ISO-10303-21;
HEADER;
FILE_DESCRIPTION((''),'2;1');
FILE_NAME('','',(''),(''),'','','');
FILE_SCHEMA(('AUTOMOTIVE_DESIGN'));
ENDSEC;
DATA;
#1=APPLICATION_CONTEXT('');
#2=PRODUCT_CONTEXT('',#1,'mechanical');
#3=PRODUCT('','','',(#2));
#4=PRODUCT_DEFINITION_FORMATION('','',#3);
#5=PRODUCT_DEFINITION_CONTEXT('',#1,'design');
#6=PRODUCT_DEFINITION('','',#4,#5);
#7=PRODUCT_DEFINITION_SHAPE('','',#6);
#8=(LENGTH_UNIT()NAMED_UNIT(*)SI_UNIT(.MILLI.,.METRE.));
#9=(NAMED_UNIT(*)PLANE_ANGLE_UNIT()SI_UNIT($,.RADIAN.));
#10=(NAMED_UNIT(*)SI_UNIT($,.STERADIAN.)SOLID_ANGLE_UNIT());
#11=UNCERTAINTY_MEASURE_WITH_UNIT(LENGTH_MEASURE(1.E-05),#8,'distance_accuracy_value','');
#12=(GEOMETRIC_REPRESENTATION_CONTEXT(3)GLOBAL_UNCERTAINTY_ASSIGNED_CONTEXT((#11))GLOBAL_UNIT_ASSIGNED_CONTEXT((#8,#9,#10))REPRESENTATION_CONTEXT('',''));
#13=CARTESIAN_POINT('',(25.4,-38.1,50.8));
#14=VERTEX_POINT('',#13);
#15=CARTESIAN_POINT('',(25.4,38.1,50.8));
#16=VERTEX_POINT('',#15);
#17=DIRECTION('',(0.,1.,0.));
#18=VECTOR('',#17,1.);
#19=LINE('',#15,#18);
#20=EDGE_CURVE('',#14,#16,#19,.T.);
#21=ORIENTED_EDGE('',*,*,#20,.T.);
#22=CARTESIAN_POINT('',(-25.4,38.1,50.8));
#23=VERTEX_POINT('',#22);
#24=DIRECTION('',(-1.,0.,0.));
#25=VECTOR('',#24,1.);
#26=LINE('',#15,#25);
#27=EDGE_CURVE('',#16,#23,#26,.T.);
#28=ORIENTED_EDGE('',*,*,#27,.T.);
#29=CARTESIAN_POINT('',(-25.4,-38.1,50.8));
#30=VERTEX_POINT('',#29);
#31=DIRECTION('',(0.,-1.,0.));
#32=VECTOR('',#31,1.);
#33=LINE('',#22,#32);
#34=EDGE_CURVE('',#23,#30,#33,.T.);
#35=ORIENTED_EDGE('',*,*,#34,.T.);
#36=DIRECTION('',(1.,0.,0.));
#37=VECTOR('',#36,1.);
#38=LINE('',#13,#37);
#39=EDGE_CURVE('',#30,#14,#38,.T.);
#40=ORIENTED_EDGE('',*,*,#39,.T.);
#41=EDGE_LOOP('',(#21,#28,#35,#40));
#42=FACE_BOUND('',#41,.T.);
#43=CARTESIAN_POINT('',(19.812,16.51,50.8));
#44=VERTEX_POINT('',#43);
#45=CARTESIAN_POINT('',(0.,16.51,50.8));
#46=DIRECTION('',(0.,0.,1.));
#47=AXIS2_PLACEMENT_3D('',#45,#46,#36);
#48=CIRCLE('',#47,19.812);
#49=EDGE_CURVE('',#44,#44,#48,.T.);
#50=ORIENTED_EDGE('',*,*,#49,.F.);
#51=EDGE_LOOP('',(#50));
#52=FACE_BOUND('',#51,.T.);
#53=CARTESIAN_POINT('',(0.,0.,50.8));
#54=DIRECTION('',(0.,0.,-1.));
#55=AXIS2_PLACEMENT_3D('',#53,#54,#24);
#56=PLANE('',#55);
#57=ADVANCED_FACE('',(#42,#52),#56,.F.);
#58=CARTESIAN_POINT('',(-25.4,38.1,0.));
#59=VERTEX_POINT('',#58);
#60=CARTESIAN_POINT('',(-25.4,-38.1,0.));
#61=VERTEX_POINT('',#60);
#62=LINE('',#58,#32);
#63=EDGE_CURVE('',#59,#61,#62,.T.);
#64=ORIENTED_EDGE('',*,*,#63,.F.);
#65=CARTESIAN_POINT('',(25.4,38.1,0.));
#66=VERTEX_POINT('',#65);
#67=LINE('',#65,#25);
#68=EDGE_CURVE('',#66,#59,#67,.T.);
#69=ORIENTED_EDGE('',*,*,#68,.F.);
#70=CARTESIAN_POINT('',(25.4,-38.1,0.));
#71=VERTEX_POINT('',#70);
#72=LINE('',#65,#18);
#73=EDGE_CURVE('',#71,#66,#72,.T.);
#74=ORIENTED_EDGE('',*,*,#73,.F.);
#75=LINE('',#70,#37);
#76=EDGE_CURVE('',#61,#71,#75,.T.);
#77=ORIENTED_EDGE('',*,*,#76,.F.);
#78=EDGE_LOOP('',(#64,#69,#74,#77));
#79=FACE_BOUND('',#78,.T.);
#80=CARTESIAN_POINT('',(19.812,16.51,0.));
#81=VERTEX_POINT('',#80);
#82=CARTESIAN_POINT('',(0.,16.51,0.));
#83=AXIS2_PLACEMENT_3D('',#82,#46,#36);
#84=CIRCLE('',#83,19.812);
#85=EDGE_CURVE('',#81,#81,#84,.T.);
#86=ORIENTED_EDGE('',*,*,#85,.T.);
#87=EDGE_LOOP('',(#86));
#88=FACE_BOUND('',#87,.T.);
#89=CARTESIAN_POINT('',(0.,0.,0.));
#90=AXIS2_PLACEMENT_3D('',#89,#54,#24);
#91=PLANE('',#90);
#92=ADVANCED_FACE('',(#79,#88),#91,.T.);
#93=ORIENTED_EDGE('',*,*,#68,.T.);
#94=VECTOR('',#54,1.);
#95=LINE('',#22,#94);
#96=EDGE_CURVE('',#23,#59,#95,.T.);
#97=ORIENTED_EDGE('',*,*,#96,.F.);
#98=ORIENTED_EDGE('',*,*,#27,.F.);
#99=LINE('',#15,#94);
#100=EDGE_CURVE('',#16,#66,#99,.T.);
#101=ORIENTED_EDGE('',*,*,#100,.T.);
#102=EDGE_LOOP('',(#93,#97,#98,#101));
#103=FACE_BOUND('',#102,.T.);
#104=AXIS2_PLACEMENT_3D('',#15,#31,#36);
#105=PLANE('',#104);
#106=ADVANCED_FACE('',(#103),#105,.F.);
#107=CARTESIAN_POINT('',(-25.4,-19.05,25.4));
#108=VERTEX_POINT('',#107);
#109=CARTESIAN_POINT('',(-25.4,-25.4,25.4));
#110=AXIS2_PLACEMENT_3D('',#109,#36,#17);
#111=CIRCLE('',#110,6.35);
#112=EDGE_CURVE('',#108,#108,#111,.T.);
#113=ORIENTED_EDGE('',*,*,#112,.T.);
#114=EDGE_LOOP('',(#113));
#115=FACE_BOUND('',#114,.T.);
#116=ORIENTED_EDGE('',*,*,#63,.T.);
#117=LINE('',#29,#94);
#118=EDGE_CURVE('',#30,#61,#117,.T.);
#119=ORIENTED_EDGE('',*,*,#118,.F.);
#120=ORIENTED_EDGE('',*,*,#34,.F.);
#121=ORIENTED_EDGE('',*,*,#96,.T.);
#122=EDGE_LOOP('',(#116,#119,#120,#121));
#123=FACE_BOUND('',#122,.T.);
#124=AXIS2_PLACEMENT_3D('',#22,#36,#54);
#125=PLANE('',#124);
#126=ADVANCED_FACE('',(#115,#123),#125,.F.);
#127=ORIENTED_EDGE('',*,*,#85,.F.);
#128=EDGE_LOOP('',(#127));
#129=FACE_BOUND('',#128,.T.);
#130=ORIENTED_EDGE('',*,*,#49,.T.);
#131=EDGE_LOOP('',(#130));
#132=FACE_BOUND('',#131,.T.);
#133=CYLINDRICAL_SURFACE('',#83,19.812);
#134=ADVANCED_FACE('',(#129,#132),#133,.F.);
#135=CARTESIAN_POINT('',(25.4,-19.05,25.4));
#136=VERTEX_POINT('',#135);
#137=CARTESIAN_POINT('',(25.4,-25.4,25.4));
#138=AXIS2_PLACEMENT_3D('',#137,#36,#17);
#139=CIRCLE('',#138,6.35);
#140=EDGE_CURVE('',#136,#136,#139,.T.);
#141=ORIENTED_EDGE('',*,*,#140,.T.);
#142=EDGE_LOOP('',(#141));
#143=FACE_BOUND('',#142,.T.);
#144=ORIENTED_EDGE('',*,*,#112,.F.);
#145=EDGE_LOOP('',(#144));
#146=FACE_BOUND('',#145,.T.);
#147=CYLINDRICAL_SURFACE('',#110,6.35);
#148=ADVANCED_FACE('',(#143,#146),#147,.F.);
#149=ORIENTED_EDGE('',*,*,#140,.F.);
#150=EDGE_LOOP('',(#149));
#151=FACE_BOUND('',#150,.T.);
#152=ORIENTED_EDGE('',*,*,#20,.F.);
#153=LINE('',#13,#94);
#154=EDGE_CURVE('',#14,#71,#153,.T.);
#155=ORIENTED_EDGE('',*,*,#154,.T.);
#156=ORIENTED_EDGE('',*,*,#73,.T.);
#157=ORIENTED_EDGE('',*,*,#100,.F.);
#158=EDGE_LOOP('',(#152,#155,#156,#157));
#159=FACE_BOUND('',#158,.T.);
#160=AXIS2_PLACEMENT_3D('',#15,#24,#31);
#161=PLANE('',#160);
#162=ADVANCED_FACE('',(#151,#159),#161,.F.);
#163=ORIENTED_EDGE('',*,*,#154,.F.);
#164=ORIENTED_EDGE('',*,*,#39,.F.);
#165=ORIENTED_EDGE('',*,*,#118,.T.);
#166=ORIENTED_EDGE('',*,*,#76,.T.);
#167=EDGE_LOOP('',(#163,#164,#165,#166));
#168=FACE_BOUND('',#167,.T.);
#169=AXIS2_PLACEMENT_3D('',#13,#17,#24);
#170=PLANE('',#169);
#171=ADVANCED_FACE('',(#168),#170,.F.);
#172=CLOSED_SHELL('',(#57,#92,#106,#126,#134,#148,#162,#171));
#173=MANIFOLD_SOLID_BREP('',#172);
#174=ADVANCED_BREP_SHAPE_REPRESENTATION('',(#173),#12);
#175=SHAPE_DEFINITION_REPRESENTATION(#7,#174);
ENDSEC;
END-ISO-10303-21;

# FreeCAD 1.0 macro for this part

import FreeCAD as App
import Part
import Sketcher
Q = App.Units.Quantity

doc = App.newDocument("Part")
body = doc.addObject("PartDesign::Body", "Body")

sketch1 = doc.addObject("Sketcher::SketchObject", "Sketch")
body.addObject(sketch1)
sketch1.AttachmentSupport = (doc.XY_Plane, [""])
sketch1.MapMode = "FlatFace"
sketch1.addGeometry(Part.LineSegment(App.Vector(-25, 38, 0), App.Vector(-25, -38, 0)), False)
sketch1.addGeometry(Part.LineSegment(App.Vector(-25, -38, 0), App.Vector(25, -38, 0)), False)
sketch1.addGeometry(Part.LineSegment(App.Vector(25, -38, 0), App.Vector(25, 38, 0)), False)
sketch1.addGeometry(Part.LineSegment(App.Vector(25, 38, 0), App.Vector(-25, 38, 0)), False)
sketch1.addConstraint(Sketcher.Constraint("Coincident", 0, 2, 1, 1))
sketch1.addConstraint(Sketcher.Constraint("Coincident", 1, 2, 2, 1))
sketch1.addConstraint(Sketcher.Constraint("Coincident", 2, 2, 3, 1))
sketch1.addConstraint(Sketcher.Constraint("Coincident", 3, 2, 0, 1))
sketch1.addConstraint(Sketcher.Constraint("Vertical", 0))
sketch1.addConstraint(Sketcher.Constraint("Horizontal", 1))
sketch1.addConstraint(Sketcher.Constraint("Vertical", 2))
sketch1.addConstraint(Sketcher.Constraint("Horizontal", 3))
sketch1.addConstraint(Sketcher.Constraint("Symmetric", 0, 2, 2, 2, -1, 1))
sketch1.addConstraint(Sketcher.Constraint("DistanceX", 1, 1, 1, 2, Q("2 in")))
sketch1.addConstraint(Sketcher.Constraint("DistanceY", 0, 2, 0, 1, Q("3 in")))
pad1 = doc.addObject("PartDesign::Pad", "Pad")
body.addObject(pad1)
pad1.Profile = sketch1
pad1.Length = Q("2 in")

sketch2 = doc.addObject("Sketcher::SketchObject", "Sketch001")
body.addObject(sketch2)
sketch2.AttachmentSupport = (doc.XY_Plane, [""])
sketch2.MapMode = "FlatFace"
sketch2.AttachmentOffset = App.Placement(App.Vector(0, 0, 2 * 25.4), App.Rotation())
sketch2.addGeometry(Part.Circle(App.Vector(0, 17, 0), App.Vector(0, 0, 1), 20), False)
sketch2.addConstraint(Sketcher.Constraint("PointOnObject", 0, 3, -2))
sketch2.addConstraint(Sketcher.Constraint("Diameter", 0, Q("1.56 in")))
sketch2.addConstraint(Sketcher.Constraint("DistanceY", -1, 1, 0, 3, Q("0.65 in")))
pocket1 = doc.addObject("PartDesign::Pocket", "Pocket")
body.addObject(pocket1)
pocket1.Profile = sketch2
pocket1.Type = "ThroughAll"

sketch3 = doc.addObject("Sketcher::SketchObject", "Sketch002")
body.addObject(sketch3)
sketch3.AttachmentSupport = (doc.YZ_Plane, [""])
sketch3.MapMode = "FlatFace"
sketch3.AttachmentOffset = App.Placement(App.Vector(0, 0, 1 * 25.4), App.Rotation())
sketch3.addGeometry(Part.Circle(App.Vector(-25, 25, 0), App.Vector(0, 0, 1), 6), False)
sketch3.addConstraint(Sketcher.Constraint("Diameter", 0, Q("0.5 in")))
sketch3.addConstraint(Sketcher.Constraint("DistanceX", 0, 3, -1, 1, Q("1 in")))
sketch3.addConstraint(Sketcher.Constraint("DistanceY", -1, 1, 0, 3, Q("1 in")))
pocket2 = doc.addObject("PartDesign::Pocket", "Pocket001")
body.addObject(pocket2)
pocket2.Profile = sketch3
pocket2.Type = "ThroughAll"

doc.recompute()
